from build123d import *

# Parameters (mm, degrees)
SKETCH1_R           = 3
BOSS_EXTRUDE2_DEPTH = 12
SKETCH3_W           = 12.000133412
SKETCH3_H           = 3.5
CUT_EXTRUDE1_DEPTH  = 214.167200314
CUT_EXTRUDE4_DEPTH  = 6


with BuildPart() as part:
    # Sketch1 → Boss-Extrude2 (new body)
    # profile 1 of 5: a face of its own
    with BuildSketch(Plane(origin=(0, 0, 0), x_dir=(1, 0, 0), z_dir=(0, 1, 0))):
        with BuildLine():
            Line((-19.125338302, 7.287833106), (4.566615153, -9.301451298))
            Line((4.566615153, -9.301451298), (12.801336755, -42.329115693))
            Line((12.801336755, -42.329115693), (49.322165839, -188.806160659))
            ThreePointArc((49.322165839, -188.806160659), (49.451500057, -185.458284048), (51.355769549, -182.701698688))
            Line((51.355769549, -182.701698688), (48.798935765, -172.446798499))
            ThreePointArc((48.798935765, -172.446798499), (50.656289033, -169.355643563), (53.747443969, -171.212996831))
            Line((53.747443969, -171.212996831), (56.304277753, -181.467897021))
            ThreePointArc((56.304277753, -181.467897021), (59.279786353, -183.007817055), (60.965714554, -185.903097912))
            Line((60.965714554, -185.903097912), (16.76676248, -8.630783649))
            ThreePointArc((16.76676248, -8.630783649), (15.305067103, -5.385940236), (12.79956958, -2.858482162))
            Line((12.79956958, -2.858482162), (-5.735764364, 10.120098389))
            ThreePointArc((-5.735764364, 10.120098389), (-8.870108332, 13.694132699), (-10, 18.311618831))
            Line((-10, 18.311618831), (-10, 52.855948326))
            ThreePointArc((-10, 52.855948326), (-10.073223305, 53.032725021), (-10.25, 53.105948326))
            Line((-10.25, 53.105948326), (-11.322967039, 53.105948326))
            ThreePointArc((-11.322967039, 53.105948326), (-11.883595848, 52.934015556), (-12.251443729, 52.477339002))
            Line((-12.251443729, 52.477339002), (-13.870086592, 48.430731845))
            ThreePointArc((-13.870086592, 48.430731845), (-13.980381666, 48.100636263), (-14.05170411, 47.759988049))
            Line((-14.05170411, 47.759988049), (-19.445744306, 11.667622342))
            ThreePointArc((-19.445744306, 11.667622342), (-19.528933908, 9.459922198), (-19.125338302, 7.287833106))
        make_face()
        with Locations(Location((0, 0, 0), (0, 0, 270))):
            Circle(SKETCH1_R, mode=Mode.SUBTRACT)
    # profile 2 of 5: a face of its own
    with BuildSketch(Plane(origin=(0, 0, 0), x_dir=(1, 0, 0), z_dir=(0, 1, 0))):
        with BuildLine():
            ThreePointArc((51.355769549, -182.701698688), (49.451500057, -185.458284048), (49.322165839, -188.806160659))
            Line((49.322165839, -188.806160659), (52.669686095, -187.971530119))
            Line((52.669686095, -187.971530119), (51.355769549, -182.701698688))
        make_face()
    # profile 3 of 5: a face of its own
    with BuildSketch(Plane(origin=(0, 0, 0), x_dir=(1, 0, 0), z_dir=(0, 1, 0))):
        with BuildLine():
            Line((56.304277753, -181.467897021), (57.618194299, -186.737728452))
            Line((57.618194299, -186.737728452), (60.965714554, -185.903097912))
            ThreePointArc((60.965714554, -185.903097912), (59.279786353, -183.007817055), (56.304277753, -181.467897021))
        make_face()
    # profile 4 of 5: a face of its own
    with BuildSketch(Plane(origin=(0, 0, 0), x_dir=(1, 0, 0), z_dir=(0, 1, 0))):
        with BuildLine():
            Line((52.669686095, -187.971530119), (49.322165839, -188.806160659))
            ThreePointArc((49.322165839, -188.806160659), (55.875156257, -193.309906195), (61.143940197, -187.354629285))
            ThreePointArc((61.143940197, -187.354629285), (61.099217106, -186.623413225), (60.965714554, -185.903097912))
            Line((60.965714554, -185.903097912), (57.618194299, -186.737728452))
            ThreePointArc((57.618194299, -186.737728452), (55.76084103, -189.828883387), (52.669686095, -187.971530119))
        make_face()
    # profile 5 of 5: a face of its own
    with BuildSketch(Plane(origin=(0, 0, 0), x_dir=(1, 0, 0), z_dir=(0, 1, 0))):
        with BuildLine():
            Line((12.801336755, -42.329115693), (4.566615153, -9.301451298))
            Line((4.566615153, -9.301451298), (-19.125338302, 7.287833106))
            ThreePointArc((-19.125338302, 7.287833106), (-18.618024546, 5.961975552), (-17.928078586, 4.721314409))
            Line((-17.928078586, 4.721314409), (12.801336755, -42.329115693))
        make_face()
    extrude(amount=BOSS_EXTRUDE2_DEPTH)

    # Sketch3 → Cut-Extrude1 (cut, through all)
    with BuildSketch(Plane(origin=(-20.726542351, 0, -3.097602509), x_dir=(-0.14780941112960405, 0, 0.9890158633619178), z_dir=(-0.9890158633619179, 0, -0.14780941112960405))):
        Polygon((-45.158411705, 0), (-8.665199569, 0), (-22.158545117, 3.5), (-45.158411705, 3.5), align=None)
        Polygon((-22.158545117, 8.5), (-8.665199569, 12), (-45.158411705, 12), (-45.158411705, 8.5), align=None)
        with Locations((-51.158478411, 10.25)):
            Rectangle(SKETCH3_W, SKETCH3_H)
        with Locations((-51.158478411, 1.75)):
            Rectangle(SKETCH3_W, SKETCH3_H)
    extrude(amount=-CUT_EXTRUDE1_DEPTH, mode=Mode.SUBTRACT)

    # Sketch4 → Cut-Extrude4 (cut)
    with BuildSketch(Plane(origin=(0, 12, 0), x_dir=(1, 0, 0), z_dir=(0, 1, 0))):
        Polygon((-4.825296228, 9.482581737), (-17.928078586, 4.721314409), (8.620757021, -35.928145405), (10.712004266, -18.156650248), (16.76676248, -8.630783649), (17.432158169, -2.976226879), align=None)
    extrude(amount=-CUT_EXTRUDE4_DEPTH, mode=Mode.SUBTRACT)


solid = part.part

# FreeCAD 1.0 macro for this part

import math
import FreeCAD as App
import Part
import Sketcher

V = App.Vector
Q = App.Units.Quantity

doc = App.newDocument("Part")
params = doc.addObject("Spreadsheet::Sheet", "Params")
for row, (alias, value) in enumerate([
    ("sketch1_diameter", "6 mm"),
    ("sketch1_radius", "10 mm"),
    ("sketch1_radius2", "6 mm"),
    ("sketch1_radius3", "1 mm"),
    ("sketch1_radius4", "0.25 mm"),
    ("pad1_length", "12 mm"),
    ("sketch2_width", "35 mm"),
    ("sketch2_height", "3.5 mm"),
    ("pocket2_length", "6 mm"),
], start=1):
    params.set(f"A{row}", alias)
    params.set(f"B{row}", "=" + value)
    params.setAlias(f"B{row}", alias)

body = doc.addObject("PartDesign::Body", "Body")

# Sketch on XZ plane
sketch1 = body.newObject("Sketcher::SketchObject", "Sketch")
sketch1.AttachmentSupport = (doc.getObject("XZ_Plane"), [""])
sketch1.MapMode = "FlatFace"
sketch1.addGeometry(Part.ArcOfCircle(Part.Circle(V(-9.56, -10.19, 0), V(0, 0, 1), 10), math.radians(163), math.radians(188)), False)
sketch1.addGeometry(Part.ArcOfCircle(Part.Circle(V(-9.56, -10.19, 0), V(0, 0, 1), 10), math.radians(146.85), math.radians(163.13)), False)
sketch1.addGeometry(Part.LineSegment(V(-17.93, -4.72, 0), V(12.8, 42.33, 0)), False)
sketch1.addGeometry(Part.LineSegment(V(12.8, 42.33, 0), V(49.32, 188.81, 0)), False)
sketch1.addGeometry(Part.ArcOfCircle(Part.Circle(V(55.14, 187.35, 0), V(0, 0, 1), 6), math.radians(0), math.radians(166)), False)
sketch1.addGeometry(Part.ArcOfCircle(Part.Circle(V(55.14, 187.35, 0), V(0, 0, 1), 6), math.radians(-14), math.radians(0)), False)
sketch1.addGeometry(Part.LineSegment(V(60.97, 185.9, 0), V(16.77, 8.63, 0)), False)
sketch1.addGeometry(Part.ArcOfCircle(Part.Circle(V(7.06, 11.05, 0), V(0, 0, 1), 10), math.radians(-55), math.radians(-14)), False)
sketch1.addGeometry(Part.LineSegment(V(12.8, 2.86, 0), V(-5.74, -10.12, 0)), False)
sketch1.addGeometry(Part.ArcOfCircle(Part.Circle(V(0, -18.31, 0), V(0, 0, 1), 10), math.radians(125), math.radians(180)), False)
sketch1.addGeometry(Part.LineSegment(V(-10, -18.31, 0), V(-10, -52.86, 0)), False)
sketch1.addGeometry(Part.ArcOfCircle(Part.Circle(V(-10.25, -52.86, 0), V(0, 0, 1), 0.25), math.radians(-90), math.radians(0)), False)
sketch1.addGeometry(Part.LineSegment(V(-10.25, -53.11, 0), V(-11.32, -53.11, 0)), False)
sketch1.addGeometry(Part.ArcOfCircle(Part.Circle(V(-11.32, -52.11, 0), V(0, 0, 1), 1), math.radians(-158), math.radians(-90)), False)
sketch1.addGeometry(Part.LineSegment(V(-12.25, -52.48, 0), V(-13.87, -48.43, 0)), False)
sketch1.addGeometry(Part.ArcOfCircle(Part.Circle(V(-11.08, -47.32, 0), V(0, 0, 1), 3), math.radians(-171.5), math.radians(-158.2)), False)
sketch1.addGeometry(Part.LineSegment(V(-14.05, -47.76, 0), V(-19.45, -11.67, 0)), False)
sketch1.addGeometry(Part.LineSegment(V(51.36, 182.7, 0), V(48.8, 172.45, 0)), False)
sketch1.addGeometry(Part.ArcOfCircle(Part.Circle(V(51.27, 171.83, 0), V(0, 0, 1), 2.55), math.radians(166), math.radians(346)), False)
sketch1.addGeometry(Part.LineSegment(V(53.75, 171.21, 0), V(56.3, 181.47, 0)), False)
sketch1.addGeometry(Part.LineSegment(V(56.3, 181.47, 0), V(57.62, 186.74, 0)), False)
sketch1.addGeometry(Part.ArcOfCircle(Part.Circle(V(55.14, 187.35, 0), V(0, 0, 1), 2.55), math.radians(-14), math.radians(166)), False)
sketch1.addGeometry(Part.LineSegment(V(52.67, 187.97, 0), V(51.36, 182.7, 0)), False)
sketch1.addGeometry(Part.Circle(V(0, 0, 0), V(0, 0, 1), 3), False)
sketch1.addConstraint(Sketcher.Constraint("Tangent", 0, 1, 1, 2))
sketch1.addConstraint(Sketcher.Constraint("Tangent", 1, 1, 2, 1))
sketch1.addConstraint(Sketcher.Constraint("Coincident", 2, 2, 3, 1))
sketch1.addConstraint(Sketcher.Constraint("Tangent", 3, 2, 4, 2))
sketch1.addConstraint(Sketcher.Constraint("Tangent", 4, 1, 5, 2))
sketch1.addConstraint(Sketcher.Constraint("Tangent", 5, 1, 6, 1))
sketch1.addConstraint(Sketcher.Constraint("Tangent", 6, 2, 7, 2))
sketch1.addConstraint(Sketcher.Constraint("Tangent", 7, 1, 8, 1))
sketch1.addConstraint(Sketcher.Constraint("Tangent", 8, 2, 9, 1))
sketch1.addConstraint(Sketcher.Constraint("Tangent", 9, 2, 10, 1))
sketch1.addConstraint(Sketcher.Constraint("Tangent", 10, 2, 11, 2))
sketch1.addConstraint(Sketcher.Constraint("Tangent", 11, 1, 12, 1))
sketch1.addConstraint(Sketcher.Constraint("Tangent", 12, 2, 13, 2))
sketch1.addConstraint(Sketcher.Constraint("Tangent", 13, 1, 14, 1))
sketch1.addConstraint(Sketcher.Constraint("Tangent", 14, 2, 15, 2))
sketch1.addConstraint(Sketcher.Constraint("Tangent", 15, 1, 16, 1))
sketch1.addConstraint(Sketcher.Constraint("Tangent", 16, 2, 0, 2))
sketch1.addConstraint(Sketcher.Constraint("Tangent", 17, 2, 18, 1))
sketch1.addConstraint(Sketcher.Constraint("Tangent", 18, 2, 19, 1))
sketch1.addConstraint(Sketcher.Constraint("Coincident", 19, 2, 20, 1))
sketch1.addConstraint(Sketcher.Constraint("Tangent", 20, 2, 21, 1))
sketch1.addConstraint(Sketcher.Constraint("Tangent", 21, 2, 22, 1))
sketch1.addConstraint(Sketcher.Constraint("Coincident", 22, 2, 17, 1))
sketch1.addConstraint(Sketcher.Constraint("Vertical", 10))
sketch1.addConstraint(Sketcher.Constraint("Horizontal", 12))
sketch1.addConstraint(Sketcher.Constraint("Coincident", 23, 3, -1, 1))
sketch1.addConstraint(Sketcher.Constraint("Coincident", 21, 3, 4, 3))
sketch1.addConstraint(Sketcher.Constraint("Equal", 0, 1))
sketch1.addConstraint(Sketcher.Constraint("Equal", 4, 5))
sketch1.addConstraint(Sketcher.Constraint("Equal", 1, 7))
sketch1.addConstraint(Sketcher.Constraint("Equal", 7, 9))
sketch1.addConstraint(Sketcher.Constraint("Equal", 18, 21))
sketch1.addConstraint(Sketcher.Constraint("Equal", 15, 23))
sketch1.addConstraint(Sketcher.Constraint("PointOnObject", 9, 3, -2))
sketch1.addConstraint(Sketcher.Constraint("Parallel", 3, 6))
sketch1.addConstraint(Sketcher.Constraint("Parallel", 6, 17))
sketch1.addConstraint(Sketcher.Constraint("Parallel", 17, 19))
sketch1.addConstraint(Sketcher.Constraint("Parallel", 19, 20))
sketch1.addConstraint(Sketcher.Constraint("Horizontal", 21, 3, 4, 1))
sketch1.addConstraint(Sketcher.Constraint("Equal", 17, 19))
sketch1.addConstraint(Sketcher.Constraint("Diameter", 23, 6.0))
sketch1.addConstraint(Sketcher.Constraint("Radius", 0, 10.0))
sketch1.addConstraint(Sketcher.Constraint("Radius", 4, 6.0))
sketch1.addConstraint(Sketcher.Constraint("Radius", 13, 1.0))
sketch1.addConstraint(Sketcher.Constraint("Angle", 3, Q("76 deg")))
sketch1.addConstraint(Sketcher.Constraint("Angle", 8, Q("-145 deg")))
sketch1.addConstraint(Sketcher.Constraint("Radius", 11, 0.25))
sketch1.addConstraint(Sketcher.Constraint("Radius", 18, 2.55))
sketch1.addConstraint(Sketcher.Constraint("Angle", 16, Q("98.5 deg")))
sketch1.addConstraint(Sketcher.Constraint("DistanceY", 10, 2, 10, 1, 34.544329))
sketch1.addConstraint(Sketcher.Constraint("DistanceY", 8, 2, -1, 1, 10.120098))
sketch1.addConstraint(Sketcher.Constraint("DistanceY", -1, 1, 17, 2, 172.446798))
sketch1.addConstraint(Sketcher.Constraint("DistanceY", -1, 1, 22, 2, 182.701699))
sketch1.addConstraint(Sketcher.Constraint("DistanceY", 9, 3, 7, 1, 21.170101))
sketch1.addConstraint(Sketcher.Constraint("DistanceY", 19, 2, 5, 1, 4.435201))
sketch1.addConstraint(Sketcher.Constraint("Distance", 2, 56.196441))
sketch1.addConstraint(Sketcher.Constraint("Distance", 3, 150.961239))
sketch1.addConstraint(Sketcher.Constraint("Distance", 14, 4.358329))
sketch1.addConstraint(Sketcher.Constraint("DistanceX", 12, 2, 12, 1, 1.072967))
sketch1.addConstraint(Sketcher.Constraint("DistanceY", 0, 3, -1, 1, 10.189528))
sketch1.addConstraint(Sketcher.Constraint("DistanceX", 0, 1, -1, 1, 19.125338))
sketch1.setExpression("Constraints[40]", "Params.sketch1_diameter")
sketch1.setExpression("Constraints[41]", "Params.sketch1_radius")
sketch1.setExpression("Constraints[42]", "Params.sketch1_radius2")
sketch1.setExpression("Constraints[43]", "Params.sketch1_radius3")
sketch1.setExpression("Constraints[46]", "Params.sketch1_radius4")
pad1 = body.newObject("PartDesign::Pad", "Pad")
pad1.Profile = sketch1
pad1.setExpression("Length", "Params.pad1_length")
pad1.Reversed = True

# Sketch on an angled plane
sketch2 = body.newObject("Sketcher::SketchObject", "Sketch001")
sketch2.Placement = App.Placement(V(-20.726542, 0, -3.097603), App.Rotation(V(-0.147809411, 0, 0.989015863), V(0, 0.999999999, 0), V(-0.989015863, 0, -0.147809411), "ZXY"))
sketch2.addGeometry(Part.LineSegment(V(-8.7, 0, 0), V(-22.2, 3.5, 0)), False)
sketch2.addGeometry(Part.LineSegment(V(-22.2, 3.5, 0), V(-57.2, 3.5, 0)), False)
sketch2.addGeometry(Part.LineSegment(V(-57.2, 3.5, 0), V(-57.2, 0, 0)), False)
sketch2.addGeometry(Part.LineSegment(V(-57.2, 0, 0), V(-8.7, 0, 0)), False)
sketch2.addGeometry(Part.LineSegment(V(-22.2, 8.5, 0), V(-8.7, 12, 0)), False)
sketch2.addGeometry(Part.LineSegment(V(-8.7, 12, 0), V(-57.2, 12, 0)), False)
sketch2.addGeometry(Part.LineSegment(V(-57.2, 12, 0), V(-57.2, 8.5, 0)), False)
sketch2.addGeometry(Part.LineSegment(V(-57.2, 8.5, 0), V(-22.2, 8.5, 0)), False)
sketch2.addConstraint(Sketcher.Constraint("Coincident", 0, 2, 1, 1))
sketch2.addConstraint(Sketcher.Constraint("Coincident", 1, 2, 2, 1))
sketch2.addConstraint(Sketcher.Constraint("Coincident", 2, 2, 3, 1))
sketch2.addConstraint(Sketcher.Constraint("Coincident", 3, 2, 0, 1))
sketch2.addConstraint(Sketcher.Constraint("Coincident", 4, 2, 5, 1))
sketch2.addConstraint(Sketcher.Constraint("Coincident", 5, 2, 6, 1))
sketch2.addConstraint(Sketcher.Constraint("Coincident", 6, 2, 7, 1))
sketch2.addConstraint(Sketcher.Constraint("Coincident", 7, 2, 4, 1))
sketch2.addConstraint(Sketcher.Constraint("Horizontal", 1))
sketch2.addConstraint(Sketcher.Constraint("Vertical", 2))
sketch2.addConstraint(Sketcher.Constraint("Horizontal", 3))
sketch2.addConstraint(Sketcher.Constraint("Horizontal", 5))
sketch2.addConstraint(Sketcher.Constraint("Vertical", 6))
sketch2.addConstraint(Sketcher.Constraint("Horizontal", 7))
sketch2.addConstraint(Sketcher.Constraint("PointOnObject", 2, 2, -1))
sketch2.addConstraint(Sketcher.Constraint("Vertical", 3, 2, 4, 2))
sketch2.addConstraint(Sketcher.Constraint("Vertical", 2, 2, 5, 2))
sketch2.addConstraint(Sketcher.Constraint("Vertical", 0, 2, 7, 2))
sketch2.addConstraint(Sketcher.Constraint("Equal", 2, 6))
sketch2.addConstraint(Sketcher.Constraint("DistanceX", 1, 2, 1, 1, 35.0))
sketch2.addConstraint(Sketcher.Constraint("DistanceY", 2, 2, 2, 1, 3.5))
sketch2.addConstraint(Sketcher.Constraint("DistanceY", -1, 1, 4, 2, 12.0))
sketch2.addConstraint(Sketcher.Constraint("DistanceX", 3, 2, -1, 1, 8.6652))
sketch2.addConstraint(Sketcher.Constraint("DistanceX", 3, 1, 3, 2, 48.493346))
sketch2.setExpression("Constraints[19]", "Params.sketch2_width")
sketch2.setExpression("Constraints[20]", "Params.sketch2_height")
pocket1 = body.newObject("PartDesign::Pocket", "Pocket")
pocket1.Profile = sketch2
pocket1.Type = "ThroughAll"

# Sketch on XZ plane
sketch3 = body.newObject("Sketcher::SketchObject", "Sketch002")
sketch3.AttachmentSupport = (doc.getObject("XZ_Plane"), [""])
sketch3.MapMode = "FlatFace"
sketch3.AttachmentOffset = App.Placement(V(0, 0, -12), App.Rotation())
sketch3.addGeometry(Part.LineSegment(V(-5, -9, 0), V(-18, -5, 0)), False)
sketch3.addGeometry(Part.LineSegment(V(-18, -5, 0), V(9, 36, 0)), False)
sketch3.addGeometry(Part.LineSegment(V(9, 36, 0), V(11, 18, 0)), False)
sketch3.addGeometry(Part.LineSegment(V(11, 18, 0), V(17, 9, 0)), False)
sketch3.addGeometry(Part.LineSegment(V(17, 9, 0), V(17, 3, 0)), False)
sketch3.addGeometry(Part.LineSegment(V(17, 3, 0), V(-5, -9, 0)), False)
sketch3.addConstraint(Sketcher.Constraint("Coincident", 0, 2, 1, 1))
sketch3.addConstraint(Sketcher.Constraint("Coincident", 1, 2, 2, 1))
sketch3.addConstraint(Sketcher.Constraint("Coincident", 2, 2, 3, 1))
sketch3.addConstraint(Sketcher.Constraint("Coincident", 3, 2, 4, 1))
sketch3.addConstraint(Sketcher.Constraint("Coincident", 4, 2, 5, 1))
sketch3.addConstraint(Sketcher.Constraint("Coincident", 5, 2, 0, 1))
sketch3.addConstraint(Sketcher.Constraint("Parallel", 2, 4))
sketch3.addConstraint(Sketcher.Constraint("DistanceY", 0, 2, 3, 2, 13.352098))
sketch3.addConstraint(Sketcher.Constraint("DistanceX", 1, 2, 4, 2, 8.811401))
sketch3.addConstraint(Sketcher.Constraint("DistanceX", 5, 2, 2, 2, 15.5373))
sketch3.addConstraint(Sketcher.Constraint("Distance", 0, 13.941039))
sketch3.addConstraint(Sketcher.Constraint("Distance", 3, 11.28726))
sketch3.addConstraint(Sketcher.Constraint("Distance", 5, 25.507179))
sketch3.addConstraint(Sketcher.Constraint("DistanceX", 0, 2, -1, 1, 17.928079))
sketch3.addConstraint(Sketcher.Constraint("DistanceY", -1, 1, 2, 2, 18.15665))
sketch3.addConstraint(Sketcher.Constraint("DistanceX", -1, 1, 4, 2, 17.432158))
sketch3.addConstraint(Sketcher.Constraint("DistanceY", 5, 2, -1, 1, 9.482582))
sketch3.addConstraint(Sketcher.Constraint("DistanceY", 0, 2, 1, 2, 40.64946))
pocket2 = body.newObject("PartDesign::Pocket", "Pocket001")
pocket2.Profile = sketch3
pocket2.setExpression("Length", "Params.pocket2_length")
pocket2.Reversed = True

doc.recompute()
